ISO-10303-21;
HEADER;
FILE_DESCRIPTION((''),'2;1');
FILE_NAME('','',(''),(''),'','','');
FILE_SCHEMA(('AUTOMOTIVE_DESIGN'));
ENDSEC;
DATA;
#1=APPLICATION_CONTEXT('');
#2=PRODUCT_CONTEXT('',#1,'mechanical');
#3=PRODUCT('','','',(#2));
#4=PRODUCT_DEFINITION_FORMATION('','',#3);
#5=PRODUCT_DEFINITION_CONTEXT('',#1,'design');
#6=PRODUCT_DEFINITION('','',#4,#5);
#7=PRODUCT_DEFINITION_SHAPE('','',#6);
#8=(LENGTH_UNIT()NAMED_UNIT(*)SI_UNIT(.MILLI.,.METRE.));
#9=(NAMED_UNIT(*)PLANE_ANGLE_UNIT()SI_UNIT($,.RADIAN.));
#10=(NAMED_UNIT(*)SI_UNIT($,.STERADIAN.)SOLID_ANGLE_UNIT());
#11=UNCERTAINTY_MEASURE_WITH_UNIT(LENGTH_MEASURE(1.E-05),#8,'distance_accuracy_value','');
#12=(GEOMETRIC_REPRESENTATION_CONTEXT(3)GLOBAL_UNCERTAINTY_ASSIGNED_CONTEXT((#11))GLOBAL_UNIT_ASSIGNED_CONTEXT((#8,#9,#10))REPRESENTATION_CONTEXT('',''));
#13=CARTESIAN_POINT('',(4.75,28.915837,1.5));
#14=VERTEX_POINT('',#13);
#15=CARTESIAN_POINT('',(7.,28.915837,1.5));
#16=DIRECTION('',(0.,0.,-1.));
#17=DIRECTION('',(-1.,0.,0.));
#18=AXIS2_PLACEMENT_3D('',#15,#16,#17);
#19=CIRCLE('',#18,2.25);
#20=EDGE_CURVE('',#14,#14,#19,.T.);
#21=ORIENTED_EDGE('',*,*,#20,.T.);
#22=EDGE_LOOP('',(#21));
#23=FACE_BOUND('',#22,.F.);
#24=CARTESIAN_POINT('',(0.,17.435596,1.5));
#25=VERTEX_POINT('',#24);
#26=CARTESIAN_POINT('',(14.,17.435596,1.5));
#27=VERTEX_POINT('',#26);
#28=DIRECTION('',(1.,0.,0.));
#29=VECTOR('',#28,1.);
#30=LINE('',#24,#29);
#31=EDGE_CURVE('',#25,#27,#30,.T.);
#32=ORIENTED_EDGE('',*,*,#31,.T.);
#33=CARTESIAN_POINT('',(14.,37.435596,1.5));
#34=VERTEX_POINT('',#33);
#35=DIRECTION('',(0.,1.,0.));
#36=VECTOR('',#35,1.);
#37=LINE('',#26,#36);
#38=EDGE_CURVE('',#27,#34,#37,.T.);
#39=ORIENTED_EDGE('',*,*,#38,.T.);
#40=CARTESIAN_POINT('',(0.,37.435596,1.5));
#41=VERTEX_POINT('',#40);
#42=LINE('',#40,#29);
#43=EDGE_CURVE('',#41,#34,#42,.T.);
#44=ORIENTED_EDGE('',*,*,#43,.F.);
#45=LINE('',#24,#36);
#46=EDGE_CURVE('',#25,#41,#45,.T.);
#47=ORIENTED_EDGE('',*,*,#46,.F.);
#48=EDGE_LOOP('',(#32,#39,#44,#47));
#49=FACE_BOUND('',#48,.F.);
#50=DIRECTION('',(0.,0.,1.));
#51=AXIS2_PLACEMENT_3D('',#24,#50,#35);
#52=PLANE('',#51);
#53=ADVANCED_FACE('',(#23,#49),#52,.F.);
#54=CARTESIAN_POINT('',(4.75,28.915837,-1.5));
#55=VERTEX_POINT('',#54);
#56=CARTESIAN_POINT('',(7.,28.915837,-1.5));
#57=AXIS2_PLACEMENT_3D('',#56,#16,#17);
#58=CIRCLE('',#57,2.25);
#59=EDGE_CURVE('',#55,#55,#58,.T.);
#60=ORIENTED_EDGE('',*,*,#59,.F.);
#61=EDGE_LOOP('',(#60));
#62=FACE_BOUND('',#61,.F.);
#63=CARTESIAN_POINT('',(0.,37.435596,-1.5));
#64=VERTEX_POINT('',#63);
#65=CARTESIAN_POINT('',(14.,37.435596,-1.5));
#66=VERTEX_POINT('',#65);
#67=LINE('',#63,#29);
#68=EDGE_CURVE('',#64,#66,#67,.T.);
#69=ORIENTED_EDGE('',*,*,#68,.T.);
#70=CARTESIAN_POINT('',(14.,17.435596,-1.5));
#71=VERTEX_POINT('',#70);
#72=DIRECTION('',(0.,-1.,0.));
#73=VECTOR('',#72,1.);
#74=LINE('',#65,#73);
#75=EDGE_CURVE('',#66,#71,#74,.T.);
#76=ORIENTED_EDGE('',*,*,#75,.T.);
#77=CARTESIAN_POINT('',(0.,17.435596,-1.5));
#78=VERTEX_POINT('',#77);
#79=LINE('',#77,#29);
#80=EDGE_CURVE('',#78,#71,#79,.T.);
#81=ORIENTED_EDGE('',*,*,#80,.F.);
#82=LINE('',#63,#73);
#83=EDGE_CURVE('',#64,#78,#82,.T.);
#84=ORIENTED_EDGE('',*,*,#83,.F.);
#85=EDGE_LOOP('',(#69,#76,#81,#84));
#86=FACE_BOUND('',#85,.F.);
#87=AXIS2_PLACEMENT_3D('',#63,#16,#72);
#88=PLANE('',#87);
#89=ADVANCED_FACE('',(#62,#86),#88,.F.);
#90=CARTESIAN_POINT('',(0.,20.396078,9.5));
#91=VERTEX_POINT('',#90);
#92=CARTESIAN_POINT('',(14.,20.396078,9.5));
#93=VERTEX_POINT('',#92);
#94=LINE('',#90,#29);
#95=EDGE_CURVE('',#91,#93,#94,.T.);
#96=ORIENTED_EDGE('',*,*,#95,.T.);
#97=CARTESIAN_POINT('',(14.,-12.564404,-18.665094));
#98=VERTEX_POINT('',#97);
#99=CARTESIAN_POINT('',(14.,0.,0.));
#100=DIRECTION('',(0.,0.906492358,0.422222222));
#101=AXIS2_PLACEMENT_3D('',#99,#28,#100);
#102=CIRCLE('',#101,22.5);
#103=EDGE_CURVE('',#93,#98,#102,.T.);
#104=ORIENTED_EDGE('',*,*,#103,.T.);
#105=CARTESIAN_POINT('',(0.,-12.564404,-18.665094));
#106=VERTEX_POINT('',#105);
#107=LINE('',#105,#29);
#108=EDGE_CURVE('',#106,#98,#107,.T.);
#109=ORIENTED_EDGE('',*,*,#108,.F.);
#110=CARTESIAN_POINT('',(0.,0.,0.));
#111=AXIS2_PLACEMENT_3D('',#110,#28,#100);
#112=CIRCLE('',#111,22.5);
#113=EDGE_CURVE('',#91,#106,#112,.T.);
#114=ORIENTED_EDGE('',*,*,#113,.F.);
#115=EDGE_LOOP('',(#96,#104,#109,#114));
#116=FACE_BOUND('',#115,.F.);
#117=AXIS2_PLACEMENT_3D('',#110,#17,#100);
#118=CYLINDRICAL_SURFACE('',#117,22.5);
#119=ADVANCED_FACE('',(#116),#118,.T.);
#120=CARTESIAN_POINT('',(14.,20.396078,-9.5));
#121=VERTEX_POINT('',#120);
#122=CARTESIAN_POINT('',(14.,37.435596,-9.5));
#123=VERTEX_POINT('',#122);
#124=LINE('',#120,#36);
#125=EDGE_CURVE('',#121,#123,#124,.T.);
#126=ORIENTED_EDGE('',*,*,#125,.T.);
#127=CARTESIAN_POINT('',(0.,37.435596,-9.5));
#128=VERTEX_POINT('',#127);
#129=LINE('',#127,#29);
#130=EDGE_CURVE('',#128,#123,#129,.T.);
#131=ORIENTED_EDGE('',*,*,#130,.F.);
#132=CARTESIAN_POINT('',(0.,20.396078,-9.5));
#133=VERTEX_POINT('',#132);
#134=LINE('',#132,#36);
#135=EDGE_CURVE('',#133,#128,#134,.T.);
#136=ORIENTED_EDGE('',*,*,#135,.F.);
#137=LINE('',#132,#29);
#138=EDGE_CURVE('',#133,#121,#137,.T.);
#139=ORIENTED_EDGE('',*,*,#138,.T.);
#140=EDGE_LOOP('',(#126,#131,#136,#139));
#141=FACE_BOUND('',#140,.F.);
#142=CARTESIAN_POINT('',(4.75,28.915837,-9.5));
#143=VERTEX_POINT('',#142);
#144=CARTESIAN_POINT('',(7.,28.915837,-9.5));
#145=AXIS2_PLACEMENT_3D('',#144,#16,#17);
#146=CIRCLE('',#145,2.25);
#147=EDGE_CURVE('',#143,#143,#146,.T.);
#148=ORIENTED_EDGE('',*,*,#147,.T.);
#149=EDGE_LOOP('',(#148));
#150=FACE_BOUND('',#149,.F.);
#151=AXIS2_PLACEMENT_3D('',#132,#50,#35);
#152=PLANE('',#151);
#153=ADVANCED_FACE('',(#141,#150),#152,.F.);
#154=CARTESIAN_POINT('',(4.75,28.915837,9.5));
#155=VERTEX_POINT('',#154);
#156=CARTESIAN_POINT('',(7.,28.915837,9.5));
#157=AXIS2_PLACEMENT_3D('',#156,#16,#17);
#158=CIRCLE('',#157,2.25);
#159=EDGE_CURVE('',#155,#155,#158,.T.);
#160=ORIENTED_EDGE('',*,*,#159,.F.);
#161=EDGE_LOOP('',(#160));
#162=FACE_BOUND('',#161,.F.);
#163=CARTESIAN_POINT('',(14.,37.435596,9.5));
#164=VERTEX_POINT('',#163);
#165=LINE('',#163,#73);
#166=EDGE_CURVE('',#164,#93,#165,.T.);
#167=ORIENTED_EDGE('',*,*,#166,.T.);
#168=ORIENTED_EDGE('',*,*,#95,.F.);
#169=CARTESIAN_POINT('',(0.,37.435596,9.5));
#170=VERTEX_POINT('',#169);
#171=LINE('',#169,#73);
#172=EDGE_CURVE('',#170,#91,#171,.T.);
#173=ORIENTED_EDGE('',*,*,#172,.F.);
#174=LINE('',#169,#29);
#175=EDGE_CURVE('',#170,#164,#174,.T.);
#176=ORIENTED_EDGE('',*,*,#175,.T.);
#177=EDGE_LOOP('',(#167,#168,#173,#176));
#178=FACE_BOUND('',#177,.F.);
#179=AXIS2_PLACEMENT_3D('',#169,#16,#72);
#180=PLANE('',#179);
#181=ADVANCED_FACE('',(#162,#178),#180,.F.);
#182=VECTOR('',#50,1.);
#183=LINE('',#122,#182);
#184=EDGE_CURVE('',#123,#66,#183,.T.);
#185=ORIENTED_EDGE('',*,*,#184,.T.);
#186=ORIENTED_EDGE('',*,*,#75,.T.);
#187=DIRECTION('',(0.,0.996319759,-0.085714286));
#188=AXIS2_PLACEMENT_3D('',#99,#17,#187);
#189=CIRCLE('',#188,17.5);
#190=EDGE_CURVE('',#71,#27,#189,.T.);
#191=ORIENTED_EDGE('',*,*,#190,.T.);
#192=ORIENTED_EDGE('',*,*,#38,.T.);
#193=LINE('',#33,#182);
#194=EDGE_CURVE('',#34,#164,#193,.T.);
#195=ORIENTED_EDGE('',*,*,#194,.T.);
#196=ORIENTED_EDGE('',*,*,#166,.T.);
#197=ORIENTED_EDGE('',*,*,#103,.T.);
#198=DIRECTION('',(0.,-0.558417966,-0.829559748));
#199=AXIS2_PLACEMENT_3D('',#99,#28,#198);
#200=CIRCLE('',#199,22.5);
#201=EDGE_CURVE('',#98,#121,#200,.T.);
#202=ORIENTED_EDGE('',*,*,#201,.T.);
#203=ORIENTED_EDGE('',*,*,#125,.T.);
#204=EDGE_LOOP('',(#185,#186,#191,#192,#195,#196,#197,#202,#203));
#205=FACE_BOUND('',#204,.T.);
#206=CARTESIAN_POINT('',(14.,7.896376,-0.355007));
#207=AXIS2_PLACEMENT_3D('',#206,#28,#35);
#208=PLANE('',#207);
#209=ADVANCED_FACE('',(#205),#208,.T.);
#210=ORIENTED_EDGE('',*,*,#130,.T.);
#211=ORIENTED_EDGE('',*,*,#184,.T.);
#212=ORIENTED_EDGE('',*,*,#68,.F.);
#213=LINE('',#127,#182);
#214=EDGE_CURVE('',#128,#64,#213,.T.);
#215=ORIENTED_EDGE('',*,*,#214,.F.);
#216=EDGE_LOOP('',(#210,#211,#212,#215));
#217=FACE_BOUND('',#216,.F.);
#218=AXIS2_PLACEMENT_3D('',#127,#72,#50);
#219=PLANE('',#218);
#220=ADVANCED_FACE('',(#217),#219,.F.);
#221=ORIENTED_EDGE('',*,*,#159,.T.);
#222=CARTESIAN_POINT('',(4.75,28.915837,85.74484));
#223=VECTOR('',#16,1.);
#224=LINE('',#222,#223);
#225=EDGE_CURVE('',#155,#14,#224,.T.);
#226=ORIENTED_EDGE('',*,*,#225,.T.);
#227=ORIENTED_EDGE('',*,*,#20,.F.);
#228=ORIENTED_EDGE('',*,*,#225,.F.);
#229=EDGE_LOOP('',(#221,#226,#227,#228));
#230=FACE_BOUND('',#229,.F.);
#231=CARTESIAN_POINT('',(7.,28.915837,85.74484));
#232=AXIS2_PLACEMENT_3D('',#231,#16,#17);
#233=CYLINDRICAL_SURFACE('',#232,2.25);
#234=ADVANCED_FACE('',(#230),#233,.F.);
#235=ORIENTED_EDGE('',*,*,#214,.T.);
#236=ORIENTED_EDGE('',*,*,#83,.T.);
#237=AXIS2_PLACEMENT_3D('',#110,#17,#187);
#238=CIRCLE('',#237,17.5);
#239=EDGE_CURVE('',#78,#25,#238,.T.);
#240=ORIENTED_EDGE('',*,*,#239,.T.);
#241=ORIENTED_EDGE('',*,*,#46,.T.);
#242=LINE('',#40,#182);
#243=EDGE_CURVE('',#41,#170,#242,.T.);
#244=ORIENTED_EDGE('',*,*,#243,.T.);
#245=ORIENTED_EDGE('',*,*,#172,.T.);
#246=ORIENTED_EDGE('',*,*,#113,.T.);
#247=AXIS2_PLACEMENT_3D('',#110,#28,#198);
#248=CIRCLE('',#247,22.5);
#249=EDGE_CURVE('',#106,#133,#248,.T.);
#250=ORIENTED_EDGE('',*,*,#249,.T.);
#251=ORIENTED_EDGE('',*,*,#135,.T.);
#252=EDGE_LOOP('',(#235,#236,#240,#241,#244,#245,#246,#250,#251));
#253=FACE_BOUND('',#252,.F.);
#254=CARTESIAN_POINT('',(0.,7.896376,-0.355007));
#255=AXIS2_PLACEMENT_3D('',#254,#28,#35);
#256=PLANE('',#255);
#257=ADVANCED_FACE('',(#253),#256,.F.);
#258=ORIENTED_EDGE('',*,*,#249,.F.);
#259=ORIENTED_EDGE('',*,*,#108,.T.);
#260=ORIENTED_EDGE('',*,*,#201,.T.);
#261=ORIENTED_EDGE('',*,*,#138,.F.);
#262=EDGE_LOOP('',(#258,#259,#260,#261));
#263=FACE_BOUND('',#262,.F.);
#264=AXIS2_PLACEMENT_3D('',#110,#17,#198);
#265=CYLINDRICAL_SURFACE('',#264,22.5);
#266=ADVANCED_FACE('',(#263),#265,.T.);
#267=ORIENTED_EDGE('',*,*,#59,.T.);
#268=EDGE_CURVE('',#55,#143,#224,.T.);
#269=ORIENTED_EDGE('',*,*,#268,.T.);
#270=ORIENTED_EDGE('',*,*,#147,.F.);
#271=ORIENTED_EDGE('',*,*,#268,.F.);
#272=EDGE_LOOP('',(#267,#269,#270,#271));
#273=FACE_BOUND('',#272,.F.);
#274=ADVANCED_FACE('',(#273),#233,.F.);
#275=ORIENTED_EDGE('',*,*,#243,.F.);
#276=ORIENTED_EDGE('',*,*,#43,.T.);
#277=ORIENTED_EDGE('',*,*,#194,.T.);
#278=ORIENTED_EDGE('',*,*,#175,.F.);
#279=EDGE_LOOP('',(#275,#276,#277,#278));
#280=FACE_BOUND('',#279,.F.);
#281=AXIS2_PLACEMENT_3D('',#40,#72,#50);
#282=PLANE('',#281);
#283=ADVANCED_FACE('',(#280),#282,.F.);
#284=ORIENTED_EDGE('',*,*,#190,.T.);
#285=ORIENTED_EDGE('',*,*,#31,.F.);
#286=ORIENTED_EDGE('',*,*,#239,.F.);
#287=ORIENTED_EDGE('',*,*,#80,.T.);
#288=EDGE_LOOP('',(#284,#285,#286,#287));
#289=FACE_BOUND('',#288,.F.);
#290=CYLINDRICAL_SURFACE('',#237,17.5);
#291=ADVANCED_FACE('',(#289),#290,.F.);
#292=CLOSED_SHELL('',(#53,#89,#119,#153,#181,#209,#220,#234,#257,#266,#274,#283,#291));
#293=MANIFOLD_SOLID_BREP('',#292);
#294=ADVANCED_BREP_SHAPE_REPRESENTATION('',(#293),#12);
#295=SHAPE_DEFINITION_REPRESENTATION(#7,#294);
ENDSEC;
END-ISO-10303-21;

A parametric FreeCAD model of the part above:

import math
import FreeCAD as App
import Part
import Sketcher

doc = App.newDocument("Part")
body = doc.addObject("PartDesign::Body", "Body")

sketch1 = body.newObject("Sketcher::SketchObject", "Sketch")
sketch1.AttachmentSupport = (doc.getObject("YZ_Plane"), [""])
sketch1.MapMode = "FlatFace"
sketch1.addGeometry(Part.ArcOfCircle(Part.Circle(App.Vector(0, 0, 0), App.Vector(0, 0, 1), 17.5), math.radians(5), math.radians(355)), False)
sketch1.addGeometry(Part.LineSegment(App.Vector(17.4, 1.5, 0), App.Vector(37.4, 1.5, 0)), False)
sketch1.addGeometry(Part.LineSegment(App.Vector(37.4, 1.5, 0), App.Vector(37.4, 9.5, 0)), False)
sketch1.addGeometry(Part.LineSegment(App.Vector(37.4, 9.5, 0), App.Vector(20.4, 9.5, 0)), False)
sketch1.addGeometry(Part.ArcOfCircle(Part.Circle(App.Vector(0, 0, 0), App.Vector(0, 0, 1), 22.5), math.radians(25), math.radians(236)), False)
sketch1.addGeometry(Part.ArcOfCircle(Part.Circle(App.Vector(0, 0, 0), App.Vector(0, 0, 1), 22.5), math.radians(-124), math.radians(-25)), False)
sketch1.addGeometry(Part.LineSegment(App.Vector(20.4, -9.5, 0), App.Vector(37.4, -9.5, 0)), False)
sketch1.addGeometry(Part.LineSegment(App.Vector(37.4, -9.5, 0), App.Vector(37.4, -1.5, 0)), False)
sketch1.addGeometry(Part.LineSegment(App.Vector(37.4, -1.5, 0), App.Vector(17.4, -1.5, 0)), False)
sketch1.addConstraint(Sketcher.Constraint("Coincident", 0, 1, 1, 1))
sketch1.addConstraint(Sketcher.Constraint("Coincident", 1, 2, 2, 1))
sketch1.addConstraint(Sketcher.Constraint("Coincident", 2, 2, 3, 1))
sketch1.addConstraint(Sketcher.Constraint("Coincident", 3, 2, 4, 1))
sketch1.addConstraint(Sketcher.Constraint("Tangent", 4, 2, 5, 1))
sketch1.addConstraint(Sketcher.Constraint("Coincident", 5, 2, 6, 1))
sketch1.addConstraint(Sketcher.Constraint("Coincident", 6, 2, 7, 1))
sketch1.addConstraint(Sketcher.Constraint("Coincident", 7, 2, 8, 1))
sketch1.addConstraint(Sketcher.Constraint("Coincident", 8, 2, 0, 2))
sketch1.addConstraint(Sketcher.Constraint("Horizontal", 1))
sketch1.addConstraint(Sketcher.Constraint("Vertical", 2))
sketch1.addConstraint(Sketcher.Constraint("Horizontal", 3))
sketch1.addConstraint(Sketcher.Constraint("Horizontal", 6))
sketch1.addConstraint(Sketcher.Constraint("Vertical", 7))
sketch1.addConstraint(Sketcher.Constraint("Horizontal", 8))
sketch1.addConstraint(Sketcher.Constraint("Coincident", 0, 3, -1, 1))
sketch1.addConstraint(Sketcher.Constraint("Coincident", 4, 3, -1, 1))
sketch1.addConstraint(Sketcher.Constraint("Equal", 4, 5))
sketch1.addConstraint(Sketcher.Constraint("Symmetric", 2, 2, 6, 2, -1))
sketch1.addConstraint(Sketcher.Constraint("Vertical", 0, 1, 8, 2))
sketch1.addConstraint(Sketcher.Constraint("Radius", 0, 17.5))
sketch1.addConstraint(Sketcher.Constraint("Radius", 4, 22.5))
sketch1.addConstraint(Sketcher.Constraint("DistanceX", 1, 1, 1, 2, 20.0))
sketch1.addConstraint(Sketcher.Constraint("DistanceY", 2, 1, 2, 2, 8.0))
sketch1.addConstraint(Sketcher.Constraint("DistanceX", 4, 2, 0, 1, 30.0))
sketch1.addConstraint(Sketcher.Constraint("DistanceY", 5, 2, 0, 1, 11.0))
pad1 = body.newObject("PartDesign::Pad", "Pad")
pad1.Profile = sketch1
pad1.Length = 14

sketch2 = body.newObject("Sketcher::SketchObject", "Sketch001")
sketch2.AttachmentSupport = (doc.getObject("XY_Plane"), [""])
sketch2.MapMode = "FlatFace"
sketch2.AttachmentOffset = App.Placement(App.Vector(0, 0, 9.5), App.Rotation())
sketch2.addGeometry(Part.Circle(App.Vector(7, 28.9, 0), App.Vector(0, 0, 1), 2.2), False)
sketch2.addConstraint(Sketcher.Constraint("Diameter", 0, 4.5))
sketch2.addConstraint(Sketcher.Constraint("DistanceX", -1, 1, 0, 3, 7.0))
sketch2.addConstraint(Sketcher.Constraint("DistanceY", -1, 1, 0, 3, 28.915837))
doc.recompute()
hole = body.newObject("PartDesign::Hole", "Hole")
hole.Profile = sketch2
hole.ThreadType = "None"
hole.Diameter = 4.5
hole.DepthType = "ThroughAll"

doc.recompute()
